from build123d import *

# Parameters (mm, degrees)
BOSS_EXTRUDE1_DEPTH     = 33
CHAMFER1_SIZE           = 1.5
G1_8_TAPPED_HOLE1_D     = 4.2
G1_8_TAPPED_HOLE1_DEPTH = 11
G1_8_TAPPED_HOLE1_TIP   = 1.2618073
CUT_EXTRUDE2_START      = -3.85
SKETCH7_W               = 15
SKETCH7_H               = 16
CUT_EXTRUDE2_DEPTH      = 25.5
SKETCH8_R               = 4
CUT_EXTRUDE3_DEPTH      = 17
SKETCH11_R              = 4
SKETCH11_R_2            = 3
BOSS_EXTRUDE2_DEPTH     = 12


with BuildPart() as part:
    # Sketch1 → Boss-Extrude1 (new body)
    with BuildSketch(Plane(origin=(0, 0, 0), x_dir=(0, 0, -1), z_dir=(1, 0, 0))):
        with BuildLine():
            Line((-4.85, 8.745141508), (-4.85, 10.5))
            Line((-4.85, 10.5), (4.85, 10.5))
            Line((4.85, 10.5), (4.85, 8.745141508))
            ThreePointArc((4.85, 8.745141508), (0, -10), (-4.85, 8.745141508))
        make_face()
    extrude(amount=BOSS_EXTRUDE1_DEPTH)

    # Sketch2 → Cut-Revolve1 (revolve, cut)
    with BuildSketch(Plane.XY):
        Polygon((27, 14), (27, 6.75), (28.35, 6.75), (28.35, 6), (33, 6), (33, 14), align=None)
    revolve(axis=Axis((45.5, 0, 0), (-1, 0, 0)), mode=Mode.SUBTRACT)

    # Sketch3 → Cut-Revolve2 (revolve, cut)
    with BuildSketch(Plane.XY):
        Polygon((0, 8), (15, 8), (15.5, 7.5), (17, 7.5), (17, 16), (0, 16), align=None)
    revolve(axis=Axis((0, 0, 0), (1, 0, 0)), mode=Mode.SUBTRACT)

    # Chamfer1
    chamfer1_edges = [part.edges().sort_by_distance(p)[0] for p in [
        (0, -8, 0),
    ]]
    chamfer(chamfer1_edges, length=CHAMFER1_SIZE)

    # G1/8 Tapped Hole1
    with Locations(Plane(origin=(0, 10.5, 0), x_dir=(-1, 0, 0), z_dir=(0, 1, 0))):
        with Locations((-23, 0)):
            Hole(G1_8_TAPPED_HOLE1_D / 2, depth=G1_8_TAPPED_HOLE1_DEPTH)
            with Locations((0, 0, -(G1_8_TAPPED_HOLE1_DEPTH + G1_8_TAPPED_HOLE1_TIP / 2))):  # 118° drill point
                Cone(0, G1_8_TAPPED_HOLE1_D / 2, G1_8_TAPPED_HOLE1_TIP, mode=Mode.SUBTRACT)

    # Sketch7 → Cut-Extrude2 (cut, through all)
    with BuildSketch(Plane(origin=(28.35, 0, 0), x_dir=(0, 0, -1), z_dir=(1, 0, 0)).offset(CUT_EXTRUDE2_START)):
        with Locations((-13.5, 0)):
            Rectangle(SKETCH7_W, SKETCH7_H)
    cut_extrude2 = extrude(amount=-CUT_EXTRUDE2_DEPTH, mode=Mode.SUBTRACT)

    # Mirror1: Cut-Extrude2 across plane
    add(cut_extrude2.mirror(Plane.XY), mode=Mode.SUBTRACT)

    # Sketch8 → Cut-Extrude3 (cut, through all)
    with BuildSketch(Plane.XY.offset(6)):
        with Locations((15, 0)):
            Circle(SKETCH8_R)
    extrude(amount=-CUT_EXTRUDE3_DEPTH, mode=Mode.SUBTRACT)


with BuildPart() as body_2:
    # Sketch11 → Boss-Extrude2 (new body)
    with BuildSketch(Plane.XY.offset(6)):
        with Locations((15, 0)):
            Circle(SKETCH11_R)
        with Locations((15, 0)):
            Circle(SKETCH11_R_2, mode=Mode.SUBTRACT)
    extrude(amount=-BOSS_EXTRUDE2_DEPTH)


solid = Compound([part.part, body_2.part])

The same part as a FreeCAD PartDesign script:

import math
import FreeCAD as App
import Part
import Sketcher

V = App.Vector
Q = App.Units.Quantity


def edges_at(feature, points):
    """Names of the edges that pass closest to the given points."""
    edges = feature.Shape.Edges
    near = lambda p: min(range(len(edges)), key=lambda i: edges[i].distToShape(Part.Vertex(*p))[0])
    return sorted({f"Edge{near(p) + 1}" for p in points})


def add_polygon(sketch, points):
    """Adds a closed chain of lines whose ends are joined by coincident constraints."""
    first, n = sketch.GeometryCount, len(points)
    for a, b in zip(points, points[1:] + points[:1]):
        sketch.addGeometry(Part.LineSegment(App.Vector(*a, 0), App.Vector(*b, 0)), False)
    for i in range(n):
        sketch.addConstraint(Sketcher.Constraint("Coincident", first + i, 2, first + (i + 1) % n, 1))

doc = App.newDocument("Part")
body = doc.addObject("PartDesign::Body", "Body")

sketch1 = body.newObject("Sketcher::SketchObject", "Sketch")
sketch1.AttachmentSupport = (doc.getObject("YZ_Plane"), [""])
sketch1.MapMode = "FlatFace"
sketch1.addGeometry(Part.LineSegment(V(10.5, 4.85, 0), V(8.745142, 4.85, 0)), False)
sketch1.addGeometry(Part.ArcOfCircle(Part.Circle(V(0, 0, 0), V(0, 0, 1), 10), math.radians(29.012472), math.radians(330.987528)), False)
sketch1.addGeometry(Part.LineSegment(V(8.745142, -4.85, 0), V(10.5, -4.85, 0)), False)
sketch1.addGeometry(Part.LineSegment(V(10.5, -4.85, 0), V(10.5, 4.85, 0)), False)
sketch1.addConstraint(Sketcher.Constraint("Coincident", 0, 2, 1, 1))
sketch1.addConstraint(Sketcher.Constraint("Coincident", 1, 2, 2, 1))
sketch1.addConstraint(Sketcher.Constraint("Coincident", 2, 2, 3, 1))
sketch1.addConstraint(Sketcher.Constraint("Coincident", 3, 2, 0, 1))
sketch1.addConstraint(Sketcher.Constraint("Horizontal", 0))
sketch1.addConstraint(Sketcher.Constraint("Horizontal", 2))
sketch1.addConstraint(Sketcher.Constraint("Vertical", 3))
sketch1.addConstraint(Sketcher.Constraint("Coincident", 1, 3, -1, 1))
sketch1.addConstraint(Sketcher.Constraint("Vertical", 0, 2, 1, 2))
sketch1.addConstraint(Sketcher.Constraint("Radius", 1, 10.0))
sketch1.addConstraint(Sketcher.Constraint("DistanceY", 3, 1, 3, 2, 9.7))
sketch1.addConstraint(Sketcher.Constraint("DistanceX", -1, 1, 2, 2, 10.5))
pad1 = body.newObject("PartDesign::Pad", "Pad")
pad1.Profile = sketch1
pad1.Length = 33

sketch2 = body.newObject("Sketcher::SketchObject", "Sketch001")
sketch2.AttachmentSupport = (doc.getObject("XY_Plane"), [""])
sketch2.MapMode = "FlatFace"
add_polygon(sketch2, [(27, 14), (27, 6.75), (28.35, 6.75), (28.35, 6), (33, 6), (33, 14)])
sketch2.addConstraint(Sketcher.Constraint("Vertical", 0))
sketch2.addConstraint(Sketcher.Constraint("Horizontal", 1))
sketch2.addConstraint(Sketcher.Constraint("Vertical", 2))
sketch2.addConstraint(Sketcher.Constraint("Horizontal", 3))
sketch2.addConstraint(Sketcher.Constraint("Vertical", 4))
sketch2.addConstraint(Sketcher.Constraint("Horizontal", 5))
sketch2.addConstraint(Sketcher.Constraint("DistanceX", 5, 2, 5, 1, 6.0))
sketch2.addConstraint(Sketcher.Constraint("DistanceY", 4, 1, 4, 2, 8.0))
sketch2.addConstraint(Sketcher.Constraint("DistanceX", -1, 1, 0, 2, 27.0))
sketch2.addConstraint(Sketcher.Constraint("DistanceY", -1, 1, 2, 2, 6.0))
sketch2.addConstraint(Sketcher.Constraint("DistanceX", 1, 1, 1, 2, 1.35))
sketch2.addConstraint(Sketcher.Constraint("DistanceY", 0, 2, 0, 1, 7.25))
groove = body.newObject("PartDesign::Groove", "Groove")
groove.Profile = sketch2
groove.ReferenceAxis = (sketch2, ["H_Axis"])
groove.Angle = 360

sketch3 = body.newObject("Sketcher::SketchObject", "Sketch002")
sketch3.AttachmentSupport = (doc.getObject("XY_Plane"), [""])
sketch3.MapMode = "FlatFace"
add_polygon(sketch3, [(0, 8), (15, 8), (15.5, 7.5), (17, 7.5), (17, 16), (0, 16)])
sketch3.addConstraint(Sketcher.Constraint("Horizontal", 0))
sketch3.addConstraint(Sketcher.Constraint("Horizontal", 2))
sketch3.addConstraint(Sketcher.Constraint("Vertical", 3))
sketch3.addConstraint(Sketcher.Constraint("Horizontal", 4))
sketch3.addConstraint(Sketcher.Constraint("Vertical", 5))
sketch3.addConstraint(Sketcher.Constraint("PointOnObject", 4, 2, -2))
sketch3.addConstraint(Sketcher.Constraint("DistanceX", 0, 1, 0, 2, 15.0))
sketch3.addConstraint(Sketcher.Constraint("DistanceX", 4, 2, 4, 1, 17.0))
sketch3.addConstraint(Sketcher.Constraint("DistanceY", 5, 2, 5, 1, 8.0))
sketch3.addConstraint(Sketcher.Constraint("Angle", 1, Q("-45 deg")))
sketch3.addConstraint(Sketcher.Constraint("DistanceX", 2, 1, 2, 2, 1.5))
sketch3.addConstraint(Sketcher.Constraint("DistanceY", -1, 1, 0, 2, 8.0))
groove2 = body.newObject("PartDesign::Groove", "Groove001")
groove2.Profile = sketch3
groove2.ReferenceAxis = (sketch3, ["H_Axis"])
groove2.Angle = 360
doc.recompute()

chamfer = body.newObject("PartDesign::Chamfer", "Chamfer")
chamfer.Base = (groove2, edges_at(groove2, [(0, -8, 0)]))
chamfer.Size = 1.5

sketch4 = body.newObject("Sketcher::SketchObject", "Sketch003")
sketch4.AttachmentSupport = (doc.getObject("XZ_Plane"), [""])
sketch4.MapMode = "FlatFace"
sketch4.AttachmentOffset = App.Placement(V(0, 0, -10.5), App.Rotation())
sketch4.addGeometry(Part.Circle(V(23, 0, 0), V(0, 0, 1), 2.1), False)
sketch4.addConstraint(Sketcher.Constraint("PointOnObject", 0, 3, -1))
sketch4.addConstraint(Sketcher.Constraint("Diameter", 0, 4.2))
sketch4.addConstraint(Sketcher.Constraint("DistanceX", -1, 1, 0, 3, 23.0))
doc.recompute()
hole = body.newObject("PartDesign::Hole", "Hole")
hole.Profile = sketch4
hole.ThreadType = "None"
hole.Diameter = 4.2
hole.DepthType = "Dimension"
hole.Depth = 11
hole.DrillPoint = "Angled"
hole.DrillPointAngle = 118
hole.Reversed = True

sketch5 = body.newObject("Sketcher::SketchObject", "Sketch004")
sketch5.AttachmentSupport = (doc.getObject("YZ_Plane"), [""])
sketch5.MapMode = "FlatFace"
sketch5.AttachmentOffset = App.Placement(V(0, 0, 24.5), App.Rotation())
add_polygon(sketch5, [(8, 21), (-8, 21), (-8, 6), (8, 6)])
sketch5.addConstraint(Sketcher.Constraint("Horizontal", 0))
sketch5.addConstraint(Sketcher.Constraint("Vertical", 1))
sketch5.addConstraint(Sketcher.Constraint("Horizontal", 2))
sketch5.addConstraint(Sketcher.Constraint("Vertical", 3))
sketch5.addConstraint(Sketcher.Constraint("DistanceX", 0, 2, 0, 1, 16.0))
sketch5.addConstraint(Sketcher.Constraint("DistanceY", 1, 2, 1, 1, 15.0))
sketch5.addConstraint(Sketcher.Constraint("DistanceX", 0, 2, -1, 1, 8.0))
sketch5.addConstraint(Sketcher.Constraint("DistanceY", -1, 1, 0, 2, 21.0))
pocket1 = body.newObject("PartDesign::Pocket", "Pocket")
pocket1.Profile = sketch5
pocket1.Type = "ThroughAll"
doc.recompute()

mirrored = body.newObject("PartDesign::Mirrored", "Mirrored")
mirrored.Originals = [pocket1]
mirrored.MirrorPlane = (doc.getObject("XY_Plane"), [""])
body.Tip = mirrored

sketch6 = body.newObject("Sketcher::SketchObject", "Sketch005")
sketch6.AttachmentSupport = (doc.getObject("XY_Plane"), [""])
sketch6.MapMode = "FlatFace"
sketch6.AttachmentOffset = App.Placement(V(0, 0, 6), App.Rotation())
sketch6.addGeometry(Part.Circle(V(15, 0, 0), V(0, 0, 1), 4), False)
sketch6.addConstraint(Sketcher.Constraint("PointOnObject", 0, 3, -1))
sketch6.addConstraint(Sketcher.Constraint("Diameter", 0, 8.0))
sketch6.addConstraint(Sketcher.Constraint("DistanceX", -1, 1, 0, 3, 15.0))
pocket2 = body.newObject("PartDesign::Pocket", "Pocket001")
pocket2.Profile = sketch6
pocket2.Type = "ThroughAll"
body2 = doc.addObject("PartDesign::Body", "Body001")

sketch7 = body2.newObject("Sketcher::SketchObject", "Sketch006")
sketch7.AttachmentSupport = (doc.getObject("XY_Plane001"), [""])
sketch7.MapMode = "FlatFace"
sketch7.AttachmentOffset = App.Placement(V(0, 0, 6), App.Rotation())
sketch7.addGeometry(Part.Circle(V(15, 0, 0), V(0, 0, 1), 4), False)
sketch7.addGeometry(Part.Circle(V(15, 0, 0), V(0, 0, 1), 3), False)
sketch7.addConstraint(Sketcher.Constraint("Coincident", 1, 3, 0, 3))
sketch7.addConstraint(Sketcher.Constraint("PointOnObject", 0, 3, -1))
sketch7.addConstraint(Sketcher.Constraint("Diameter", 0, 8.0))
sketch7.addConstraint(Sketcher.Constraint("Diameter", 1, 6.0))
sketch7.addConstraint(Sketcher.Constraint("DistanceX", -1, 1, 0, 3, 15.0))
pad2 = body2.newObject("PartDesign::Pad", "Pad001")
pad2.Profile = sketch7
pad2.Length = 12
pad2.Reversed = True

doc.recompute()
